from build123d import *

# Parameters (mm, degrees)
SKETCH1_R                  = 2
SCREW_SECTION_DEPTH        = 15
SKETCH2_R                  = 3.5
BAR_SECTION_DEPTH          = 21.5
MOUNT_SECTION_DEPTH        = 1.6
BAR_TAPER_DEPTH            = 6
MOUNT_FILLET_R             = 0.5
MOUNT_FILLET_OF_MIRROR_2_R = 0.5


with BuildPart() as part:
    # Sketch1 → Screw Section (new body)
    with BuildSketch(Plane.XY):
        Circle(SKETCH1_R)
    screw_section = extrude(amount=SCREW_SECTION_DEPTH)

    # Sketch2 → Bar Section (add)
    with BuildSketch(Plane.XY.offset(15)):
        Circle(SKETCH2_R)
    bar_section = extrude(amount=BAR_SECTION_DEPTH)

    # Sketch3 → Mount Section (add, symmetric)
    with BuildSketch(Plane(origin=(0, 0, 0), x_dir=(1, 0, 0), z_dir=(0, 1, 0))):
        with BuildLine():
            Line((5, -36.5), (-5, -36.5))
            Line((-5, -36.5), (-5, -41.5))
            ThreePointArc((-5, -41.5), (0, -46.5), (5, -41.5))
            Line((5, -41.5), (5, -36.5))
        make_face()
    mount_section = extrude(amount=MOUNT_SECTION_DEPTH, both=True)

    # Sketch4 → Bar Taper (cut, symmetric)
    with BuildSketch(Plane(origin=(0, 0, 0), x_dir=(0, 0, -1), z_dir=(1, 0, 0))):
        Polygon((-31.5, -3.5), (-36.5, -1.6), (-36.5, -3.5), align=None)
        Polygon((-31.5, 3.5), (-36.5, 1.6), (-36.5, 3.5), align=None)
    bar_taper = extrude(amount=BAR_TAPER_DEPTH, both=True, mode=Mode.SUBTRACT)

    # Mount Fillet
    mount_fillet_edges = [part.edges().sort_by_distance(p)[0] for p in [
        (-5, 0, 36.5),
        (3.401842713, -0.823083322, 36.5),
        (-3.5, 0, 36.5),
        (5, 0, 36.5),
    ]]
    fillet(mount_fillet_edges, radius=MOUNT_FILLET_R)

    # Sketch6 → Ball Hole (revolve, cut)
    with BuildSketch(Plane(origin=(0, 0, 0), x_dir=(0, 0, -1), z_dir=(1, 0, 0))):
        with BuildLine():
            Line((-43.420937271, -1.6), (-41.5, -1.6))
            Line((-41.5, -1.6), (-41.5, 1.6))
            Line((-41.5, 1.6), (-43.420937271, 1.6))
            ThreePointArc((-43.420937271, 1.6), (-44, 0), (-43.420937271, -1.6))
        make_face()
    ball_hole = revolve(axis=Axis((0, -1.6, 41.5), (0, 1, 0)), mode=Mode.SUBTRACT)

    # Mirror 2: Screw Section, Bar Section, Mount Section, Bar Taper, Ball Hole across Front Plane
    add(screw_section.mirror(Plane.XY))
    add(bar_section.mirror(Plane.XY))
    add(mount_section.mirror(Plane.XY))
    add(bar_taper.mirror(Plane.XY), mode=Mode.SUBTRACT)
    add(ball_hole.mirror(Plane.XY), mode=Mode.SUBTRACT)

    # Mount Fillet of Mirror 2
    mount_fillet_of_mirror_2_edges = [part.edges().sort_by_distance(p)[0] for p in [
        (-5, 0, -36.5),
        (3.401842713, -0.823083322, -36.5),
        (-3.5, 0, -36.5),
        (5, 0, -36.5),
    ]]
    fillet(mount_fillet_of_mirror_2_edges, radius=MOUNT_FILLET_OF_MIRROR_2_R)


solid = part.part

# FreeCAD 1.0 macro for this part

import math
import FreeCAD as App
import Part
import Sketcher


def edges_at(feature, points):
    """Names of the edges that pass closest to the given points."""
    edges = feature.Shape.Edges
    near = lambda p: min(range(len(edges)), key=lambda i: edges[i].distToShape(Part.Vertex(*p))[0])
    return sorted({f"Edge{near(p) + 1}" for p in points})

doc = App.newDocument("Part")
body = doc.addObject("PartDesign::Body", "Body")

# Sketch on XY plane
sketch1 = body.newObject("Sketcher::SketchObject", "Sketch")
sketch1.AttachmentSupport = (doc.getObject("XY_Plane"), [""])
sketch1.MapMode = "FlatFace"
sketch1.addGeometry(Part.Circle(App.Vector(0, 0, 0), App.Vector(0, 0, 1), 2), False)
sketch1.addConstraint([
    Sketcher.Constraint("Coincident", 0, 3, -1, 1),
    Sketcher.Constraint("Diameter", 0, 4.0),
])
pad1 = body.newObject("PartDesign::Pad", "Pad")
pad1.Profile = sketch1
pad1.Length = 15

# Sketch on XY plane
sketch2 = body.newObject("Sketcher::SketchObject", "Sketch001")
sketch2.AttachmentSupport = (doc.getObject("XY_Plane"), [""])
sketch2.MapMode = "FlatFace"
sketch2.AttachmentOffset = App.Placement(App.Vector(0, 0, 15), App.Rotation())
sketch2.addGeometry(Part.Circle(App.Vector(0, 0, 0), App.Vector(0, 0, 1), 3.5), False)
sketch2.addConstraint([
    Sketcher.Constraint("Coincident", 0, 3, -1, 1),
    Sketcher.Constraint("Diameter", 0, 7.0),
])
pad2 = body.newObject("PartDesign::Pad", "Pad001")
pad2.Profile = sketch2
pad2.Length = 21.5

# Sketch on XZ plane
sketch3 = body.newObject("Sketcher::SketchObject", "Sketch002")
sketch3.AttachmentSupport = (doc.getObject("XZ_Plane"), [""])
sketch3.MapMode = "FlatFace"
sketch3.addGeometry([
    Part.LineSegment(App.Vector(5, 36.5, 0), App.Vector(-5, 36.5, 0)),
    Part.LineSegment(App.Vector(-5, 36.5, 0), App.Vector(-5, 41.5, 0)),
    Part.ArcOfCircle(Part.Circle(App.Vector(0, 41.5, 0), App.Vector(0, 0, 1), 5), math.radians(0), math.radians(180)),
    Part.LineSegment(App.Vector(5, 41.5, 0), App.Vector(5, 36.5, 0)),
], False)
sketch3.addConstraint([
    Sketcher.Constraint("Coincident", 0, 2, 1, 1),
    Sketcher.Constraint("Tangent", 1, 2, 2, 2),
    Sketcher.Constraint("Tangent", 2, 1, 3, 1),
    Sketcher.Constraint("Coincident", 3, 2, 0, 1),
    Sketcher.Constraint("Horizontal", 0),
    Sketcher.Constraint("Vertical", 1),
    Sketcher.Constraint("Vertical", 3),
    Sketcher.Constraint("PointOnObject", 2, 3, -2),
    Sketcher.Constraint("Radius", 2, 5.0),
    Sketcher.Constraint("DistanceY", 1, 1, 1, 2, 5.0),
    Sketcher.Constraint("DistanceY", -1, 1, 2, 3, 41.5),
])
pad3 = body.newObject("PartDesign::Pad", "Pad002")
pad3.Profile = sketch3
pad3.Length = 3.2
pad3.Midplane = True

# Sketch on YZ plane
sketch4 = body.newObject("Sketcher::SketchObject", "Sketch003")
sketch4.AttachmentSupport = (doc.getObject("YZ_Plane"), [""])
sketch4.MapMode = "FlatFace"
sketch4.addGeometry([
    Part.LineSegment(App.Vector(-3.5, 31.5, 0), App.Vector(-1.6, 36.5, 0)),  # 0
    Part.LineSegment(App.Vector(-1.6, 36.5, 0), App.Vector(-3.5, 36.5, 0)),  # 1
    Part.LineSegment(App.Vector(-3.5, 36.5, 0), App.Vector(-3.5, 31.5, 0)),  # 2
    Part.LineSegment(App.Vector(1.6, 36.5, 0), App.Vector(3.5, 31.5, 0)),  # 3
    Part.LineSegment(App.Vector(3.5, 31.5, 0), App.Vector(3.5, 36.5, 0)),  # 4
    Part.LineSegment(App.Vector(3.5, 36.5, 0), App.Vector(1.6, 36.5, 0)),  # 5
], False)
sketch4.addConstraint([
    Sketcher.Constraint("Coincident", 0, 2, 1, 1),
    Sketcher.Constraint("Coincident", 1, 2, 2, 1),
    Sketcher.Constraint("Coincident", 2, 2, 0, 1),
    Sketcher.Constraint("Coincident", 3, 2, 4, 1),
    Sketcher.Constraint("Coincident", 4, 2, 5, 1),
    Sketcher.Constraint("Coincident", 5, 2, 3, 1),
    Sketcher.Constraint("Horizontal", 1),
    Sketcher.Constraint("Vertical", 2),
    Sketcher.Constraint("Vertical", 4),
    Sketcher.Constraint("Horizontal", 5),
    Sketcher.Constraint("Symmetric", 2, 2, 3, 2, -2),
    Sketcher.Constraint("Symmetric", 0, 2, 5, 2, -2),
    Sketcher.Constraint("DistanceY", 2, 2, 2, 1, 5.0),
    Sketcher.Constraint("DistanceX", 1, 2, 1, 1, 1.9),
    Sketcher.Constraint("DistanceX", 2, 2, 3, 2, 7.0),
    Sketcher.Constraint("DistanceY", -1, 1, 0, 2, 36.5),
])
pocket1 = body.newObject("PartDesign::Pocket", "Pocket")
pocket1.Profile = sketch4
pocket1.Length = 12
pocket1.Midplane = True
doc.recompute()

fillet = body.newObject("PartDesign::Fillet", "Fillet")
fillet.Base = (pocket1, edges_at(pocket1, [
    (-5, 0, 36.5),
    (3.402, -0.823, 36.5),
    (-3.5, 0, 36.5),
    (5, 0, 36.5),
]))
fillet.Radius = 0.5

# Sketch on YZ plane
sketch5 = body.newObject("Sketcher::SketchObject", "Sketch004")
sketch5.AttachmentSupport = (doc.getObject("YZ_Plane"), [""])
sketch5.MapMode = "FlatFace"
sketch5.addGeometry([
    Part.LineSegment(App.Vector(-1.6, 43.420937, 0), App.Vector(-1.6, 41.5, 0)),
    Part.LineSegment(App.Vector(-1.6, 41.5, 0), App.Vector(1.6, 41.5, 0)),
    Part.LineSegment(App.Vector(1.6, 41.5, 0), App.Vector(1.6, 43.420937, 0)),
    Part.ArcOfCircle(Part.Circle(App.Vector(0, 41.5, 0), App.Vector(0, 0, 1), 2.5), math.radians(50.20818), math.radians(129.79182)),
], False)
sketch5.addGeometry(Part.LineSegment(App.Vector(-1.6, 41.5, 0), App.Vector(1.6, 41.5, 0)), True)  # axis
sketch5.addConstraint([
    Sketcher.Constraint("Coincident", 0, 2, 1, 1),
    Sketcher.Constraint("Coincident", 1, 2, 2, 1),
    Sketcher.Constraint("Coincident", 2, 2, 3, 1),
    Sketcher.Constraint("Coincident", 3, 2, 0, 1),
    Sketcher.Constraint("Vertical", 0),
    Sketcher.Constraint("Horizontal", 1),
    Sketcher.Constraint("Vertical", 2),
    Sketcher.Constraint("Horizontal", 4),
    Sketcher.Constraint("Coincident", 4, 1, 0, 2),
    Sketcher.Constraint("Symmetric", 2, 2, 3, 2, -2),
    Sketcher.Constraint("Horizontal", 3, 3, 0, 2),
    Sketcher.Constraint("Vertical", 2, 2, 4, 2),
    Sketcher.Constraint("Radius", 3, 2.5),
    Sketcher.Constraint("DistanceX", 1, 1, 1, 2, 3.2),
    Sketcher.Constraint("DistanceY", -1, 1, 3, 3, 41.5),
])
groove = body.newObject("PartDesign::Groove", "Groove")
groove.Profile = sketch5
groove.ReferenceAxis = (sketch5, ["Axis0"])
groove.Angle = 360
doc.recompute()

mirrored = body.newObject("PartDesign::Mirrored", "Mirrored")
mirrored.Originals = [pad1, pad2, pad3, pocket1, groove]
mirrored.MirrorPlane = (doc.getObject("XY_Plane"), [""])
body.Tip = mirrored
doc.recompute()

fillet2 = body.newObject("PartDesign::Fillet", "Fillet001")
fillet2.Base = (mirrored, edges_at(mirrored, [
    (-5, 0, -36.5),
    (3.402, -0.823, -36.5),
    (-3.5, 0, -36.5),
    (5, 0, -36.5),
]))
fillet2.Radius = 0.5

doc.recompute()
